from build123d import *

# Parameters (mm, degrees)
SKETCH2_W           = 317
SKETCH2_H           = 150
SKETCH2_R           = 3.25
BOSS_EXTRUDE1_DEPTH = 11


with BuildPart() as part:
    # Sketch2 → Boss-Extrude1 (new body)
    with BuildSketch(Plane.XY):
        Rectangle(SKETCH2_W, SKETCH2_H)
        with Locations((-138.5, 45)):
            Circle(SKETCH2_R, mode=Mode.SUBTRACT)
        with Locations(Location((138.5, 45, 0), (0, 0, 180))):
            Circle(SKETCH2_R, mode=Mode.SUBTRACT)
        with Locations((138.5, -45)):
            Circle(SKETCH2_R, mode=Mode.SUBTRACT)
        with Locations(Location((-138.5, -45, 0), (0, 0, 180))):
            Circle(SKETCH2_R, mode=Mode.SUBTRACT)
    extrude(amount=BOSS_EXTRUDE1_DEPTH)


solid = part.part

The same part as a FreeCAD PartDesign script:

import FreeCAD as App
import Part
import Sketcher

V = App.Vector


def add_polygon(sketch, points):
    """Adds a closed chain of lines whose ends are joined by coincident constraints."""
    first, n = sketch.GeometryCount, len(points)
    for a, b in zip(points, points[1:] + points[:1]):
        sketch.addGeometry(Part.LineSegment(App.Vector(*a, 0), App.Vector(*b, 0)), False)
    for i in range(n):
        sketch.addConstraint(Sketcher.Constraint("Coincident", first + i, 2, first + (i + 1) % n, 1))

doc = App.newDocument("Part")
body = doc.addObject("PartDesign::Body", "Body")

sketch1 = doc.addObject("Sketcher::SketchObject", "Sketch")
body.addObject(sketch1)
sketch1.AttachmentSupport = (doc.XY_Plane, [""])
sketch1.MapMode = "FlatFace"
add_polygon(sketch1, [(-158.5, 75), (-158.5, -75), (158.5, -75), (158.5, 75)])
sketch1.addGeometry(Part.Circle(V(-138.5, -45, 0), V(0, 0, 1), 3.2), False)
sketch1.addGeometry(Part.Circle(V(138.5, -45, 0), V(0, 0, 1), 3.2), False)
sketch1.addGeometry(Part.Circle(V(-138.5, 45, 0), V(0, 0, 1), 3.2), False)
sketch1.addGeometry(Part.Circle(V(138.5, 45, 0), V(0, 0, 1), 3.2), False)
sketch1.addConstraint([
    Sketcher.Constraint("Vertical", 0),
    Sketcher.Constraint("Horizontal", 1),
    Sketcher.Constraint("Vertical", 2),
    Sketcher.Constraint("Horizontal", 3),
    Sketcher.Constraint("Equal", 4, 5),
    Sketcher.Constraint("Equal", 5, 6),
    Sketcher.Constraint("Equal", 6, 7),
    Sketcher.Constraint("Symmetric", 5, 3, 6, 3, -1, 1),
    Sketcher.Constraint("Symmetric", 4, 3, 7, 3, -1, 1),
    Sketcher.Constraint("Symmetric", 0, 2, 2, 2, -1, 1),
    Sketcher.Constraint("Symmetric", 4, 3, 5, 3, -2),
    Sketcher.Constraint("Diameter", 4, 6.5),
    Sketcher.Constraint("DistanceX", 1, 1, 1, 2, 317.0),
    Sketcher.Constraint("DistanceY", 0, 2, 0, 1, 150.0),
    Sketcher.Constraint("DistanceY", 4, 3, -1, 1, 45.0),
    Sketcher.Constraint("DistanceX", 4, 3, 5, 3, 277.0),
])
pad1 = doc.addObject("PartDesign::Pad", "Pad")
body.addObject(pad1)
pad1.Profile = sketch1
pad1.Length = 11

doc.recompute()
